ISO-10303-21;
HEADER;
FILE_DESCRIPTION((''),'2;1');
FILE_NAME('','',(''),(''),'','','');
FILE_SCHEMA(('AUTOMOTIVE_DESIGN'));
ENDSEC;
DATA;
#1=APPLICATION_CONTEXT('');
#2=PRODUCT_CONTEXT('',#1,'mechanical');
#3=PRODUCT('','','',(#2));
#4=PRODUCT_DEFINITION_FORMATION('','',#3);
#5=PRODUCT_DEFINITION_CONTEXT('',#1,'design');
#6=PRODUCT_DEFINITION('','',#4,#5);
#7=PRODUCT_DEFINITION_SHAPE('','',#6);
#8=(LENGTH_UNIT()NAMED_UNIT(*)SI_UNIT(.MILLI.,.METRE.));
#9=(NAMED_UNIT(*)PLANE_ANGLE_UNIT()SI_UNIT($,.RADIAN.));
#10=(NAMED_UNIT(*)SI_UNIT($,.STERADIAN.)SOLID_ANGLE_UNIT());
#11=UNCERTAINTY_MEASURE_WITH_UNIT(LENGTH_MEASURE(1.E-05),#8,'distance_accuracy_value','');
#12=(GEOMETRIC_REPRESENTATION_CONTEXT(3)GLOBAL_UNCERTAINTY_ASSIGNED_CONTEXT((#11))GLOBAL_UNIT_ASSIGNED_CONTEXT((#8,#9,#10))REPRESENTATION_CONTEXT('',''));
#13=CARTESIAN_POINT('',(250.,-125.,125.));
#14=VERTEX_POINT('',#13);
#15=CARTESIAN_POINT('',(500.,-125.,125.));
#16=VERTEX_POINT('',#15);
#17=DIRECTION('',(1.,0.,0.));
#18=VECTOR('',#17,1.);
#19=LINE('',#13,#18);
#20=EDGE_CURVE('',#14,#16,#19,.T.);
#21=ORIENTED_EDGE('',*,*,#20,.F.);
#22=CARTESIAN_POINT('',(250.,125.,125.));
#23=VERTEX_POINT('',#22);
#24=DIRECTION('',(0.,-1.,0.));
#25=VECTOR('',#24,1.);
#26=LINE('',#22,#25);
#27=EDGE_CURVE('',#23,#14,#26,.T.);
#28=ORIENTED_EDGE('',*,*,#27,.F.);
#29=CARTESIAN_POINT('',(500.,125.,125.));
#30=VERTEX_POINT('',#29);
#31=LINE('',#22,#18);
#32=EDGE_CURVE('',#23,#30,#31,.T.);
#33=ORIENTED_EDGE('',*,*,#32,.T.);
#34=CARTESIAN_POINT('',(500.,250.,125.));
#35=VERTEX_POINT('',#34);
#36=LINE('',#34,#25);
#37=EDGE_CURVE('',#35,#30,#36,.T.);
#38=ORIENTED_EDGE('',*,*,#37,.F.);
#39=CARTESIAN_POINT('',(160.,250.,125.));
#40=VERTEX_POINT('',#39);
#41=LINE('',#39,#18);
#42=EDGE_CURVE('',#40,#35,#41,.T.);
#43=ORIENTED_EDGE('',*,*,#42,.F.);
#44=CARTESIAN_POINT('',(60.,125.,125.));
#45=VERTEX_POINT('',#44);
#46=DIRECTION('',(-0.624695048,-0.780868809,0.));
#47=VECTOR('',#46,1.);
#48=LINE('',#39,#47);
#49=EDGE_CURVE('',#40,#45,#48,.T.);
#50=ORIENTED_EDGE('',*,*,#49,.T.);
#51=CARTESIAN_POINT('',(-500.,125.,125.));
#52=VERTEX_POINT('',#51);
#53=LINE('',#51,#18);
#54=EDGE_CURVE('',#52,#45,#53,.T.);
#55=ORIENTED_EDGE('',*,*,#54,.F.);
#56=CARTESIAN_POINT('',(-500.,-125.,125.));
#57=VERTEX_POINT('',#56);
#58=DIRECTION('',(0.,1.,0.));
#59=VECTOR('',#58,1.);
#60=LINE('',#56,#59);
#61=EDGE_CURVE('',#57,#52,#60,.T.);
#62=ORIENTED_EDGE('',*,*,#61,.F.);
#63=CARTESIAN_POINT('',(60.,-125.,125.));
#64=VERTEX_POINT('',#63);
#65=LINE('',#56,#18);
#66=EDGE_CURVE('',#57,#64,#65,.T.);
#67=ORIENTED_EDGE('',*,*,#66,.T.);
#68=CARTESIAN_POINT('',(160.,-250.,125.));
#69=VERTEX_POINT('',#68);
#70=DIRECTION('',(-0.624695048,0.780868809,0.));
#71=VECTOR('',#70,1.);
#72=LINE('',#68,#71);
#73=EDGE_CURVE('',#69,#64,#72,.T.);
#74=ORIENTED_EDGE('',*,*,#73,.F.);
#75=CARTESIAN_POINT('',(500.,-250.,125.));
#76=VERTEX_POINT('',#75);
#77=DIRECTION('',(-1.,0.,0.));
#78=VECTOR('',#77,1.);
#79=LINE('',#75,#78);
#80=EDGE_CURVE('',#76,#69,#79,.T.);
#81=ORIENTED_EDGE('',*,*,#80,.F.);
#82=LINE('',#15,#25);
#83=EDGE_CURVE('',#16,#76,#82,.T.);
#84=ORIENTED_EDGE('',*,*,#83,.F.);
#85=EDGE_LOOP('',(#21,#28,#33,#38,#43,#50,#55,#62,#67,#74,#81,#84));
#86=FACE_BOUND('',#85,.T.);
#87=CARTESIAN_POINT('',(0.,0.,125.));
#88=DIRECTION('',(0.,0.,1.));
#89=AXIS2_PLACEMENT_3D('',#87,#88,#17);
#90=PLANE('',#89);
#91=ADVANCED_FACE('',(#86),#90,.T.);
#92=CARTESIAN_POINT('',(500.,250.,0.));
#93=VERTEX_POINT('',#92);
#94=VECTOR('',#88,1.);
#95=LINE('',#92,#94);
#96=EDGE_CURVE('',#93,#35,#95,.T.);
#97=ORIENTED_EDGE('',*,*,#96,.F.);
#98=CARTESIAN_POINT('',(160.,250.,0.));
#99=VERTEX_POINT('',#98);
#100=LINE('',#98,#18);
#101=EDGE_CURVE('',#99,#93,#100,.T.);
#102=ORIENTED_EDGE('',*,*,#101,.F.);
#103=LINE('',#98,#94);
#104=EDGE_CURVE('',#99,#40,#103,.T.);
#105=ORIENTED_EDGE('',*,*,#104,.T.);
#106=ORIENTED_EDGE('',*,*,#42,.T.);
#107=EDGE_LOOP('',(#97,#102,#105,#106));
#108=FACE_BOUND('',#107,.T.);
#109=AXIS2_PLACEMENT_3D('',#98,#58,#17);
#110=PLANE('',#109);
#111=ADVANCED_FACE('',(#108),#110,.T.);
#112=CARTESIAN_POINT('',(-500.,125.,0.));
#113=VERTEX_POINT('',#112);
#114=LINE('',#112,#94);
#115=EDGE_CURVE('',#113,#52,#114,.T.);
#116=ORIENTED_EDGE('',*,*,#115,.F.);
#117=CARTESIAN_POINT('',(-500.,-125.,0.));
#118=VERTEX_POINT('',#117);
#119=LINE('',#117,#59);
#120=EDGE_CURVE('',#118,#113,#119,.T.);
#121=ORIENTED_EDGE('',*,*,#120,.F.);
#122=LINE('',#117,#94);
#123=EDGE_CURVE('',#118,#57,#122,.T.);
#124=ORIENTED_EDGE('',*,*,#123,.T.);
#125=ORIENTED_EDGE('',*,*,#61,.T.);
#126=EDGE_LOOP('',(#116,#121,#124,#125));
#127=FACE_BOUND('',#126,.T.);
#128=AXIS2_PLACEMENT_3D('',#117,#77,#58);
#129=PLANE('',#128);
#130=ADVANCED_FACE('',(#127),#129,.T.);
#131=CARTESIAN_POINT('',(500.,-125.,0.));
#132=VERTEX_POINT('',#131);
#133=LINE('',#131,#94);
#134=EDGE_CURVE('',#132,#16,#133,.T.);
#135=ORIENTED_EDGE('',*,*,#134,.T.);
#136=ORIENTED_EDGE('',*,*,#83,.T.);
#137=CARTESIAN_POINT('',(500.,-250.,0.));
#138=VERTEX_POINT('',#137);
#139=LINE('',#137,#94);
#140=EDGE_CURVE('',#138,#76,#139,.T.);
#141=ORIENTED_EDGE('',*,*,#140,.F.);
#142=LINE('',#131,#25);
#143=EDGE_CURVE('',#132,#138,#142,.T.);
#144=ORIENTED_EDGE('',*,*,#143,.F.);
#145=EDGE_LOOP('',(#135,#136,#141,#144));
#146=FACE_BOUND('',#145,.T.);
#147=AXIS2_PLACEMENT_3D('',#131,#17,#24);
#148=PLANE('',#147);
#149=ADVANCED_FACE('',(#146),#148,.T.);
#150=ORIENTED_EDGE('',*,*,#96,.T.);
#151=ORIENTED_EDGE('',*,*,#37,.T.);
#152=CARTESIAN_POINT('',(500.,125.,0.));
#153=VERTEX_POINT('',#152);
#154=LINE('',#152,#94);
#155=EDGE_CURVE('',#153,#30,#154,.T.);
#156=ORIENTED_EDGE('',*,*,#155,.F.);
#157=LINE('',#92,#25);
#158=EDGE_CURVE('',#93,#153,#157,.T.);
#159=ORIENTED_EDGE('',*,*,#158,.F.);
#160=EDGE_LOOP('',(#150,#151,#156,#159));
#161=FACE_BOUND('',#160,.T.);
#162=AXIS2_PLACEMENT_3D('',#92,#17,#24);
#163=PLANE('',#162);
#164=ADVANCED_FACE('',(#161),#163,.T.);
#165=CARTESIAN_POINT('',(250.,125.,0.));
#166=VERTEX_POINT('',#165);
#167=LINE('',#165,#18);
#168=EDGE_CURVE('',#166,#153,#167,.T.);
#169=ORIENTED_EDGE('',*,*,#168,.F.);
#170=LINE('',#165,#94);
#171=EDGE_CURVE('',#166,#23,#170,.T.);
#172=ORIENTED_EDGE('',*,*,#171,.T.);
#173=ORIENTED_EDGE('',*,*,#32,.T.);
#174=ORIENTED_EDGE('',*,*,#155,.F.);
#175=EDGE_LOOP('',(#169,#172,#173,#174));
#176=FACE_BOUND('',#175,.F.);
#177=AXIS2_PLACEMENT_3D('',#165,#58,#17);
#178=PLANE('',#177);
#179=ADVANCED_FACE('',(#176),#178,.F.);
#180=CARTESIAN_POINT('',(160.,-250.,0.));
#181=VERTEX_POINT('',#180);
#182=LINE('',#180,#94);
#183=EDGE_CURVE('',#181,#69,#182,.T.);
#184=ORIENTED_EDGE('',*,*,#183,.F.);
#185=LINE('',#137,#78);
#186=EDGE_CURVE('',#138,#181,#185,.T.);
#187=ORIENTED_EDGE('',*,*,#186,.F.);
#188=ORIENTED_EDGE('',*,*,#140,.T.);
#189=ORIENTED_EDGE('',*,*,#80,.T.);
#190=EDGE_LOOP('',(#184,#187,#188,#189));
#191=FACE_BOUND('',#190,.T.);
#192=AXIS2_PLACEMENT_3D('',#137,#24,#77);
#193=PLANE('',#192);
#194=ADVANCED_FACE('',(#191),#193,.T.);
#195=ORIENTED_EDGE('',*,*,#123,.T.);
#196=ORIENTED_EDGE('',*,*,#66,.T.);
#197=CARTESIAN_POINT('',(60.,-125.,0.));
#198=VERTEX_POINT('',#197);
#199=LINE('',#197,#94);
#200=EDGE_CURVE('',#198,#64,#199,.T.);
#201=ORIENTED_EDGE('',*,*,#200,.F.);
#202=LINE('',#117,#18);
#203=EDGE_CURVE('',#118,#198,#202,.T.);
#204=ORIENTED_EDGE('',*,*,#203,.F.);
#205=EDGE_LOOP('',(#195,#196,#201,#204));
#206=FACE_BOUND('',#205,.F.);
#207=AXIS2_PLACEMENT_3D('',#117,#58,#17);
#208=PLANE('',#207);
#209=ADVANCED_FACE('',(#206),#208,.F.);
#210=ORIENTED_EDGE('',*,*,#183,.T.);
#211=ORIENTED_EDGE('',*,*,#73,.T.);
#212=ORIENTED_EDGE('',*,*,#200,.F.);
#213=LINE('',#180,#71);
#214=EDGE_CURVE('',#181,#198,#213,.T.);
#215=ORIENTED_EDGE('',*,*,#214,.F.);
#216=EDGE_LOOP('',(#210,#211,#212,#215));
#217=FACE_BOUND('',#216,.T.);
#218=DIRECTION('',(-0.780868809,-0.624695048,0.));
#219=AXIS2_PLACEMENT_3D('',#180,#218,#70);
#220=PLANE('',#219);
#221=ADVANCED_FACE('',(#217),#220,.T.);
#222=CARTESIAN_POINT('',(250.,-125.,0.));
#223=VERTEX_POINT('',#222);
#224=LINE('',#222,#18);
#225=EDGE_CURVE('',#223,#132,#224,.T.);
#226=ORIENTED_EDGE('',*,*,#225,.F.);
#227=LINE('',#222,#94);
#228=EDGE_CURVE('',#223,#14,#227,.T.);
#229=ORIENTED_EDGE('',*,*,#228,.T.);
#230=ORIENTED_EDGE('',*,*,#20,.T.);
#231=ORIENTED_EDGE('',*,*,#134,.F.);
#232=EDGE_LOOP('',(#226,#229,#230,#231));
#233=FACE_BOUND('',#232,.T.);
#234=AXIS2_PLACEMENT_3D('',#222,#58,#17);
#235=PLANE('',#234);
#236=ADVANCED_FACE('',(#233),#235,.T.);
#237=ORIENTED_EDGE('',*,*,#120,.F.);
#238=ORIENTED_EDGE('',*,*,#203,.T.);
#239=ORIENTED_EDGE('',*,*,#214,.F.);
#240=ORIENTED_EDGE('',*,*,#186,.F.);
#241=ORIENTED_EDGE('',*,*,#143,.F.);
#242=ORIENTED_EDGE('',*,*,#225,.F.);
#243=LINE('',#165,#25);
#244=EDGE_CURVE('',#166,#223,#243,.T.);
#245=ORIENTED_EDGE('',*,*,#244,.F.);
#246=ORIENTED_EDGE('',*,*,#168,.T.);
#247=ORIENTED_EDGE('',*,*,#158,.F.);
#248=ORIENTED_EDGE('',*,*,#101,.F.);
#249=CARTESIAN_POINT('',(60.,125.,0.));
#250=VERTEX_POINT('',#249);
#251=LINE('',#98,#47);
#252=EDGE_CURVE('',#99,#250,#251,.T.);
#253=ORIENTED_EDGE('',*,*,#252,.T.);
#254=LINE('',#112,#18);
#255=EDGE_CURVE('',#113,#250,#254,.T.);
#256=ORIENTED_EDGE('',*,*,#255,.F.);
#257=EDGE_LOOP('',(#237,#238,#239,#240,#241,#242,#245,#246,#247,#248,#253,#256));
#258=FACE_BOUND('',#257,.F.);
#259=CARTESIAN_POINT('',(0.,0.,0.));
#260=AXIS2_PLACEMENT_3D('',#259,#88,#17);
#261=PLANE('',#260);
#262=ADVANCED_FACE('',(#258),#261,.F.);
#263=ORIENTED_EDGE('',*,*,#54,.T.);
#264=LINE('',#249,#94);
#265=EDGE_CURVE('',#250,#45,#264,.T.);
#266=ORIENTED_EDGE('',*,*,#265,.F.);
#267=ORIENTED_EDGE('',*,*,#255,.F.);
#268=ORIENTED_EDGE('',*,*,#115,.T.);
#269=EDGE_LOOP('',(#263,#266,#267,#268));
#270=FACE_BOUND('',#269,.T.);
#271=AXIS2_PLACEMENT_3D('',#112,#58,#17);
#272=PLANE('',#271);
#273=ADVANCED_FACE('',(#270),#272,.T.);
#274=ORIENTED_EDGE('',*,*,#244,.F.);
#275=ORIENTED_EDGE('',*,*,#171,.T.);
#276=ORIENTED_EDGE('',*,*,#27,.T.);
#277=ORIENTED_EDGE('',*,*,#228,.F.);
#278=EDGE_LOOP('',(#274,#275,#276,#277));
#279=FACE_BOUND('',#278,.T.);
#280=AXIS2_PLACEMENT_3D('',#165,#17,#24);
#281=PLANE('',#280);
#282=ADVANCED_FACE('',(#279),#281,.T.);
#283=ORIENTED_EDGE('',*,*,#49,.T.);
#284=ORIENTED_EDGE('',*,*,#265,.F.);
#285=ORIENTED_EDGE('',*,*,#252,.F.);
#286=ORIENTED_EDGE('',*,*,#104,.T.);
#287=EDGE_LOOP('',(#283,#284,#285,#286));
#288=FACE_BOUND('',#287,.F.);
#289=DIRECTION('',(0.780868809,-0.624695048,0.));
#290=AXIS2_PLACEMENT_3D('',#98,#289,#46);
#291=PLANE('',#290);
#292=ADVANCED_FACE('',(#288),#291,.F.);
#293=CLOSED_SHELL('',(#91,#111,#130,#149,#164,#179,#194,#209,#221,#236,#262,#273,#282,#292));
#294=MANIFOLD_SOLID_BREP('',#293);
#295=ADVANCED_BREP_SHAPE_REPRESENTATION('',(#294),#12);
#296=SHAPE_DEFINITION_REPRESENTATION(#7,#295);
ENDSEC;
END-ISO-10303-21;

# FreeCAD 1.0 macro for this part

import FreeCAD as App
import Part
import Sketcher
from FreeCAD import Vector

doc = App.newDocument("Part")
params = doc.addObject("Spreadsheet::Sheet", "Params")
for row, (alias, value) in enumerate([
    ("sketch1_width", "340 mm"),
    ("sketch1_width2", "250 mm"),
    ("sketch1_width3", "560 mm"),
    ("pad1_length", "125 mm"),
], start=1):
    params.set(f"A{row}", alias)
    params.set(f"B{row}", "=" + value)
    params.setAlias(f"B{row}", alias)

body = doc.addObject("PartDesign::Body", "Body")

# Sketch on XY plane
sketch1 = doc.addObject("Sketcher::SketchObject", "Sketch")
body.addObject(sketch1)
sketch1.AttachmentSupport = (doc.XY_Plane, [""])
sketch1.MapMode = "FlatFace"
sketch1.addGeometry(Part.LineSegment(Vector(160, -250, 0), Vector(500, -250, 0)), False)
sketch1.addGeometry(Part.LineSegment(Vector(500, -250, 0), Vector(500, -125, 0)), False)
sketch1.addGeometry(Part.LineSegment(Vector(500, -125, 0), Vector(250, -125, 0)), False)
sketch1.addGeometry(Part.LineSegment(Vector(250, -125, 0), Vector(250, 125, 0)), False)
sketch1.addGeometry(Part.LineSegment(Vector(250, 125, 0), Vector(500, 125, 0)), False)
sketch1.addGeometry(Part.LineSegment(Vector(500, 125, 0), Vector(500, 250, 0)), False)
sketch1.addGeometry(Part.LineSegment(Vector(500, 250, 0), Vector(160, 250, 0)), False)
sketch1.addGeometry(Part.LineSegment(Vector(160, 250, 0), Vector(60, 125, 0)), False)
sketch1.addGeometry(Part.LineSegment(Vector(60, 125, 0), Vector(-500, 125, 0)), False)
sketch1.addGeometry(Part.LineSegment(Vector(-500, 125, 0), Vector(-500, -125, 0)), False)
sketch1.addGeometry(Part.LineSegment(Vector(-500, -125, 0), Vector(60, -125, 0)), False)
sketch1.addGeometry(Part.LineSegment(Vector(60, -125, 0), Vector(160, -250, 0)), False)
sketch1.addConstraint(Sketcher.Constraint("Coincident", 0, 2, 1, 1))
sketch1.addConstraint(Sketcher.Constraint("Coincident", 1, 2, 2, 1))
sketch1.addConstraint(Sketcher.Constraint("Coincident", 2, 2, 3, 1))
sketch1.addConstraint(Sketcher.Constraint("Coincident", 3, 2, 4, 1))
sketch1.addConstraint(Sketcher.Constraint("Coincident", 4, 2, 5, 1))
sketch1.addConstraint(Sketcher.Constraint("Coincident", 5, 2, 6, 1))
sketch1.addConstraint(Sketcher.Constraint("Coincident", 6, 2, 7, 1))
sketch1.addConstraint(Sketcher.Constraint("Coincident", 7, 2, 8, 1))
sketch1.addConstraint(Sketcher.Constraint("Coincident", 8, 2, 9, 1))
sketch1.addConstraint(Sketcher.Constraint("Coincident", 9, 2, 10, 1))
sketch1.addConstraint(Sketcher.Constraint("Coincident", 10, 2, 11, 1))
sketch1.addConstraint(Sketcher.Constraint("Coincident", 11, 2, 0, 1))
sketch1.addConstraint(Sketcher.Constraint("Horizontal", 0))
sketch1.addConstraint(Sketcher.Constraint("Vertical", 1))
sketch1.addConstraint(Sketcher.Constraint("Horizontal", 2))
sketch1.addConstraint(Sketcher.Constraint("Vertical", 3))
sketch1.addConstraint(Sketcher.Constraint("Horizontal", 4))
sketch1.addConstraint(Sketcher.Constraint("Vertical", 5))
sketch1.addConstraint(Sketcher.Constraint("Horizontal", 6))
sketch1.addConstraint(Sketcher.Constraint("Horizontal", 8))
sketch1.addConstraint(Sketcher.Constraint("Vertical", 9))
sketch1.addConstraint(Sketcher.Constraint("Horizontal", 10))
sketch1.addConstraint(Sketcher.Constraint("Symmetric", 1, 2, 8, 2, -1, 1))
sketch1.addConstraint(Sketcher.Constraint("Symmetric", 4, 2, 9, 2, -1, 1))
sketch1.addConstraint(Sketcher.Constraint("Symmetric", 7, 2, 10, 2, -1))
sketch1.addConstraint(Sketcher.Constraint("Symmetric", 6, 2, 11, 2, -1))
sketch1.addConstraint(Sketcher.Constraint("Equal", 4, 3))
sketch1.addConstraint(Sketcher.Constraint("DistanceX", -1, 1, 0, 2, 500.0))
sketch1.addConstraint(Sketcher.Constraint("DistanceY", 0, 2, 5, 2, 500.0))
sketch1.addConstraint(Sketcher.Constraint("DistanceX", 0, 1, 0, 2, 340.0))
sketch1.addConstraint(Sketcher.Constraint("DistanceX", 2, 2, 2, 1, 250.0))
sketch1.addConstraint(Sketcher.Constraint("DistanceX", 8, 2, 8, 1, 560.0))
sketch1.setExpression("Constraints[29]", "Params.sketch1_width")
sketch1.setExpression("Constraints[30]", "Params.sketch1_width2")
sketch1.setExpression("Constraints[31]", "Params.sketch1_width3")
pad1 = doc.addObject("PartDesign::Pad", "Pad")
body.addObject(pad1)
pad1.Profile = sketch1
pad1.setExpression("Length", "Params.pad1_length")

doc.recompute()
